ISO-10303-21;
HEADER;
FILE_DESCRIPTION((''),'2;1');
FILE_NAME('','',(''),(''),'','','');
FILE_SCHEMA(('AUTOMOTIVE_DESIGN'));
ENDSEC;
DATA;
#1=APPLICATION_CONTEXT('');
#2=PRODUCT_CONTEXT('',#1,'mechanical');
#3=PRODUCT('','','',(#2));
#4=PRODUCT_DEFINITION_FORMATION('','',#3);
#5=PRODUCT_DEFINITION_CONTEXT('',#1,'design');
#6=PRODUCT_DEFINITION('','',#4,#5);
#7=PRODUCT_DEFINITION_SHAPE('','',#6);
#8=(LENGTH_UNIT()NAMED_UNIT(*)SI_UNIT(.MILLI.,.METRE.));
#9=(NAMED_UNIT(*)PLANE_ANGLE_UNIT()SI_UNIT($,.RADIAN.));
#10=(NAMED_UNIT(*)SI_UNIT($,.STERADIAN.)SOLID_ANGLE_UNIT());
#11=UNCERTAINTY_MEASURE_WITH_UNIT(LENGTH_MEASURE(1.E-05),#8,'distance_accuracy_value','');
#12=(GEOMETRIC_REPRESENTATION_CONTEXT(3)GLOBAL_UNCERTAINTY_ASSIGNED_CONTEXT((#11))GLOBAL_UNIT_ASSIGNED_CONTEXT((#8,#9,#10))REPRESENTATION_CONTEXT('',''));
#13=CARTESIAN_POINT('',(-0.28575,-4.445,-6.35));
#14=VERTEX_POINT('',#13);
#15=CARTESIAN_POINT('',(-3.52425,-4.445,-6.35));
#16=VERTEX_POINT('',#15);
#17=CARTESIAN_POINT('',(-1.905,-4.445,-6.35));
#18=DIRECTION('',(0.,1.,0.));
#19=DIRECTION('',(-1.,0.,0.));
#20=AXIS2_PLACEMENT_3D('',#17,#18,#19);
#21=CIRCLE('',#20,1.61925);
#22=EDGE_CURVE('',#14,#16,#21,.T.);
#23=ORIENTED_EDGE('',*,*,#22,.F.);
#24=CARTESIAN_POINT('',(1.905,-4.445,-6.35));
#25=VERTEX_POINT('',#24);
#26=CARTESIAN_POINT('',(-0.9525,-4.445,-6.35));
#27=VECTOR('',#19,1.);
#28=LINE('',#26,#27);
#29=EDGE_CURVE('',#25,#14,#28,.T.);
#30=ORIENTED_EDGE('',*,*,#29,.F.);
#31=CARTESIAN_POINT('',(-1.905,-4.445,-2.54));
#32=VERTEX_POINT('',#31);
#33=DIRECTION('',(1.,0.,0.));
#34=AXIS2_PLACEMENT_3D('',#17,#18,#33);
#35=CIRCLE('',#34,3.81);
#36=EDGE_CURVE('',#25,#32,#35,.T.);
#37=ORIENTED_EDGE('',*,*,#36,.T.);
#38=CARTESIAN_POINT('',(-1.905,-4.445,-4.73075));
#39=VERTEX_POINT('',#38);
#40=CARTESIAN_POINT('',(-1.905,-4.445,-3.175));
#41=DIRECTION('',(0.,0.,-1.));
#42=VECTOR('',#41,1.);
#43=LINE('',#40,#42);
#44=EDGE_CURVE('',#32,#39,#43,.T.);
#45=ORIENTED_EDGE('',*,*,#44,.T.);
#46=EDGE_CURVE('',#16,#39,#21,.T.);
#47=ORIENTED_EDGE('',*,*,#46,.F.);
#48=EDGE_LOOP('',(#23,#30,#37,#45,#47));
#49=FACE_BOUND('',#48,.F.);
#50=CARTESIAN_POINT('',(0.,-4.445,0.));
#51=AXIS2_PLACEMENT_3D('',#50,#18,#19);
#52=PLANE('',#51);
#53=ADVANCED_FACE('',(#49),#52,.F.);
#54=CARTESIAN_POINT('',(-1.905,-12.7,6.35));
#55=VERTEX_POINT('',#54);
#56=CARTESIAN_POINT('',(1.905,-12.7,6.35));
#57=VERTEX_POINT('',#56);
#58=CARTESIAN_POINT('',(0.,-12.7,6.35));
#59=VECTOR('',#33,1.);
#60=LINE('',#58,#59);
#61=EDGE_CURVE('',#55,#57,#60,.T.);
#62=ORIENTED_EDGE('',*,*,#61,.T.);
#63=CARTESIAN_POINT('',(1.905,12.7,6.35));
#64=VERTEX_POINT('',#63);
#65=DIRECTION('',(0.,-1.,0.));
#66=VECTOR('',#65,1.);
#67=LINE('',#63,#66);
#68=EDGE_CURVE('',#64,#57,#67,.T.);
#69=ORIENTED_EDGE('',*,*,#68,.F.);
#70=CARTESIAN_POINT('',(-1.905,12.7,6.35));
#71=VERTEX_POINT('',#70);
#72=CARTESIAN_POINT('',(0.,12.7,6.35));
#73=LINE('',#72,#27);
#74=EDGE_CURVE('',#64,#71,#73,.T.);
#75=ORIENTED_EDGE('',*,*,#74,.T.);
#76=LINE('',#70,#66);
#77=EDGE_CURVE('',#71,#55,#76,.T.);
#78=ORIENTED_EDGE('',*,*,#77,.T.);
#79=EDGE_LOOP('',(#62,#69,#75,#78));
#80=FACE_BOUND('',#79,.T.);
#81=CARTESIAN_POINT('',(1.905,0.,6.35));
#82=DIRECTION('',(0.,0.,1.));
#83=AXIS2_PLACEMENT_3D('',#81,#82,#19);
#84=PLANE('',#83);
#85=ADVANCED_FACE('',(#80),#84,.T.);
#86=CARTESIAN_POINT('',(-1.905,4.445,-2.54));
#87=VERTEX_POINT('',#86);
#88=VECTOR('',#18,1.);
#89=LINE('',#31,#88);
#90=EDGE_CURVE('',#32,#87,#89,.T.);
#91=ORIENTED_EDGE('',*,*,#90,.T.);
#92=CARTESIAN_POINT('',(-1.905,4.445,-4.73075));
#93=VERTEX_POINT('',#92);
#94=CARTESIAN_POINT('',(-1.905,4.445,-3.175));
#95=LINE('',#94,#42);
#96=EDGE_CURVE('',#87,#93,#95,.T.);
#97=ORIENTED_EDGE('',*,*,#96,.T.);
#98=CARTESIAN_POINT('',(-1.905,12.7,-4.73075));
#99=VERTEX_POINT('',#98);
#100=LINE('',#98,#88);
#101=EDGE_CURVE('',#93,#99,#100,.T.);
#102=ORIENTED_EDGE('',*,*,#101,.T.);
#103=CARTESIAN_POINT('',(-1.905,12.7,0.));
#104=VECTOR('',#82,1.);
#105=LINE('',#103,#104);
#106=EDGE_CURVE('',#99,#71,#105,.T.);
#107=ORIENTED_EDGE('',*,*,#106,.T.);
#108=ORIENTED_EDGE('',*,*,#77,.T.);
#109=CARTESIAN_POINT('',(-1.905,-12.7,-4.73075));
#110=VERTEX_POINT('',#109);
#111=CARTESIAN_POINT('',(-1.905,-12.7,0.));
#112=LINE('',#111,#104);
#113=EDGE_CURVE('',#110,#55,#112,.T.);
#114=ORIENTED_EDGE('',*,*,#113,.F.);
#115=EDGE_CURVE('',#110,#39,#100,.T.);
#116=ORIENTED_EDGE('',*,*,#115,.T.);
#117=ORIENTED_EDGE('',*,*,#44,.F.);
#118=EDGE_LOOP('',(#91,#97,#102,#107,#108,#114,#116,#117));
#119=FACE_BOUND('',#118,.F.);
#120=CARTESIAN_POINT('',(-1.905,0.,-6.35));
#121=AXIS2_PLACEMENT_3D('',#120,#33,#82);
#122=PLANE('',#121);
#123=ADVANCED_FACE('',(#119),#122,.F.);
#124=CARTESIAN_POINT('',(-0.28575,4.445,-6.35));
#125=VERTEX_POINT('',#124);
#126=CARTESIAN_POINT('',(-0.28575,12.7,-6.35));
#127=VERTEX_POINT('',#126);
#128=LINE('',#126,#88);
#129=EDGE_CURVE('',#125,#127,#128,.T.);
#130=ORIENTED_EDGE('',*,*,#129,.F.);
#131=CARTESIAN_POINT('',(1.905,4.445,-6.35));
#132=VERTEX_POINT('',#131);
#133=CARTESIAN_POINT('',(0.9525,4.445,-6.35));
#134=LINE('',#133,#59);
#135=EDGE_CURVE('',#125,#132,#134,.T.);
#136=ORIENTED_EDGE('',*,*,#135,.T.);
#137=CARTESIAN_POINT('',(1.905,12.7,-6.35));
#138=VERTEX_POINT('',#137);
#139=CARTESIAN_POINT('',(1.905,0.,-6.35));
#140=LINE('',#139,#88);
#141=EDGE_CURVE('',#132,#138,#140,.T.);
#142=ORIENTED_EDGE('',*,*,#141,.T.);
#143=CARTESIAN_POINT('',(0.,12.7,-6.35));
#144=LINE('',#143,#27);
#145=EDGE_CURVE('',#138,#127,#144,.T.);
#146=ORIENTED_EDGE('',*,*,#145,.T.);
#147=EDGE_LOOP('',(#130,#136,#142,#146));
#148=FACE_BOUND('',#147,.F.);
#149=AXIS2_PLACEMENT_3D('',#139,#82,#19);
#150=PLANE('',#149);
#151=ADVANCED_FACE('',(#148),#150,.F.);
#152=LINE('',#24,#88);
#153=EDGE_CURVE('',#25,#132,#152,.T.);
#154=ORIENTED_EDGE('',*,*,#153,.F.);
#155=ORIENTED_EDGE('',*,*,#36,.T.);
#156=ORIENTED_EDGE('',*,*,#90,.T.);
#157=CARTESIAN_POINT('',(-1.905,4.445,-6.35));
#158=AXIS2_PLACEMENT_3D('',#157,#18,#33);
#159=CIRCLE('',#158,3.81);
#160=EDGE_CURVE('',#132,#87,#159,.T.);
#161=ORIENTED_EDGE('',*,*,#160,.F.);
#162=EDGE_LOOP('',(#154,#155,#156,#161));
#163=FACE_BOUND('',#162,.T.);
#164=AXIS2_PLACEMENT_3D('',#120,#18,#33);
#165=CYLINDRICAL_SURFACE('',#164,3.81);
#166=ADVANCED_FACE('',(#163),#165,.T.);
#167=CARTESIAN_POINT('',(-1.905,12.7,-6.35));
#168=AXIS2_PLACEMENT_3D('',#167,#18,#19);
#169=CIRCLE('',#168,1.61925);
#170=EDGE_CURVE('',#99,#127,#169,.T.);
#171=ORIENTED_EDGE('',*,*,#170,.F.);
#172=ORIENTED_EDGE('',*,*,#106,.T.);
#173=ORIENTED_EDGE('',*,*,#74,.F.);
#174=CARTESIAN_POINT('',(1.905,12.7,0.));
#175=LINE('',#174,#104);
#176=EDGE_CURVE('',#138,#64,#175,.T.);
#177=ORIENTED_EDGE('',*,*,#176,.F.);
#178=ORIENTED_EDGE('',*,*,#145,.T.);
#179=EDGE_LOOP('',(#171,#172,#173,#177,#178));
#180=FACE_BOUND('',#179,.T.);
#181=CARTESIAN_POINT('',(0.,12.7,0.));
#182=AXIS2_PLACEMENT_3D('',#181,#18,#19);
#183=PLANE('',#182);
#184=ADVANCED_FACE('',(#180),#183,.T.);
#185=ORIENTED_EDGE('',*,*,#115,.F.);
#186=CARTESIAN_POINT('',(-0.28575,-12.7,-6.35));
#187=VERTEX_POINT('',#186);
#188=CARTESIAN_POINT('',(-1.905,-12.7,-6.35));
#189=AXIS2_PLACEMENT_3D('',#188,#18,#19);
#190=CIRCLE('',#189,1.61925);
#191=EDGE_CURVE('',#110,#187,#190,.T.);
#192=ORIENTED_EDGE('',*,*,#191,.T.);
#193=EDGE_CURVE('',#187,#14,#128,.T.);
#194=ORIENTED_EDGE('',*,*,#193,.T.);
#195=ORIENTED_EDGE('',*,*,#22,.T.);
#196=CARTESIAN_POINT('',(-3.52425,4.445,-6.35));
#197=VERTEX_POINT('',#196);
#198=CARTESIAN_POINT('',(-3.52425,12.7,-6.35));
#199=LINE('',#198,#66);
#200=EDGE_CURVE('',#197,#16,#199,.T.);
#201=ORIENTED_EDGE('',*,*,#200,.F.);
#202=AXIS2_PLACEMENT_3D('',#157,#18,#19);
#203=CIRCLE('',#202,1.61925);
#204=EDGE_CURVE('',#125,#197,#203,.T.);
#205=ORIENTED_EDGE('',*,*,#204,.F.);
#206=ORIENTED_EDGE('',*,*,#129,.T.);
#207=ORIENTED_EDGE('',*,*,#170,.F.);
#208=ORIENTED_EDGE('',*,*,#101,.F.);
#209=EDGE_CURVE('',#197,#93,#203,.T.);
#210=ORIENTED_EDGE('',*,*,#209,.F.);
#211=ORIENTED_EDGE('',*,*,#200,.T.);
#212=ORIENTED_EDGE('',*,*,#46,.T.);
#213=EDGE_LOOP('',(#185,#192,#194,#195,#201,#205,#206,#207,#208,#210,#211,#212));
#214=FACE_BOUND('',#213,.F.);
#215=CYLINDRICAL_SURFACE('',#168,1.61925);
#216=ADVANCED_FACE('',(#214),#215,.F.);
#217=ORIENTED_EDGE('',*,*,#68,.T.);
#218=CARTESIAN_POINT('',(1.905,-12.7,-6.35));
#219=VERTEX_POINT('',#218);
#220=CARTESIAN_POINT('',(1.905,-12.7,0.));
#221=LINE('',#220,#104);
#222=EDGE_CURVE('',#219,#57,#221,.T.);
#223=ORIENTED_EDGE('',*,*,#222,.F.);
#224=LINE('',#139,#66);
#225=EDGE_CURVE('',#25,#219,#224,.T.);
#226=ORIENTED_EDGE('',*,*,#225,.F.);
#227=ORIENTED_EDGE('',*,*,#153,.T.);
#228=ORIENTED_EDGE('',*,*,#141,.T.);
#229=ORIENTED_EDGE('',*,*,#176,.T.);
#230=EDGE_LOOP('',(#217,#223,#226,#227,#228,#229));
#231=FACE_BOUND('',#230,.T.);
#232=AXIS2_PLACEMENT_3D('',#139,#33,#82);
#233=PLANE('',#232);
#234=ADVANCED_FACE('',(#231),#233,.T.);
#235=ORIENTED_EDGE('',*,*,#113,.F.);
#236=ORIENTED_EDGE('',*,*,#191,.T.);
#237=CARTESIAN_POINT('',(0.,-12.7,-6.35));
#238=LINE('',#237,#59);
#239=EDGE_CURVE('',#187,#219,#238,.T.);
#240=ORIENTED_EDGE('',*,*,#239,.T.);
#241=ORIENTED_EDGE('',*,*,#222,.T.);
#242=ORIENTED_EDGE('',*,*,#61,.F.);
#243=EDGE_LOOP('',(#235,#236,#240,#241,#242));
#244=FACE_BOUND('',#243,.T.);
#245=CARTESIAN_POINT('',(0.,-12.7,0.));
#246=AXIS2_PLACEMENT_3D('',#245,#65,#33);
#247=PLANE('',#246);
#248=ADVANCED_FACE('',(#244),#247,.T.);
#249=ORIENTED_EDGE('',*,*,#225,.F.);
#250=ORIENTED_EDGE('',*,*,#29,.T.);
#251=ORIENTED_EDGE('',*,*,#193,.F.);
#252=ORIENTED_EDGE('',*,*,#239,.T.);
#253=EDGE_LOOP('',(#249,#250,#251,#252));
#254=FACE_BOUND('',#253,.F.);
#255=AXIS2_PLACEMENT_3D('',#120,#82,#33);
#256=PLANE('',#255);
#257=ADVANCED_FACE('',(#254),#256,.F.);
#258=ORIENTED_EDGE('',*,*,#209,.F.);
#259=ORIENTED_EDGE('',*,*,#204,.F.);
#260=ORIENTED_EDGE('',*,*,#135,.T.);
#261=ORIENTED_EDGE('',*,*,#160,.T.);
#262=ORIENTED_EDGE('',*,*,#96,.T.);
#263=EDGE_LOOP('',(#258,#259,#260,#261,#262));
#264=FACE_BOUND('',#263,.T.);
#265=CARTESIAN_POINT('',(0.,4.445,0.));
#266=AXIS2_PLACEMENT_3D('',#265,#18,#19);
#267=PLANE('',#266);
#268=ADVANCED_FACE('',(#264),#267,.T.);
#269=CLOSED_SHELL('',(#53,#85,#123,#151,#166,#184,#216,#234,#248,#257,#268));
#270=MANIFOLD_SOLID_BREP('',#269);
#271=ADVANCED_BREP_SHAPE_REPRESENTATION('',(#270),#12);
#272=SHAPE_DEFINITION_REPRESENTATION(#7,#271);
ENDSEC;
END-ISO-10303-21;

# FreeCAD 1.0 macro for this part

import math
import FreeCAD as App
import Part
import Sketcher
Q = App.Units.Quantity


def add_polygon(sketch, points):
    """Adds a closed chain of lines whose ends are joined by coincident constraints."""
    first, n = sketch.GeometryCount, len(points)
    for a, b in zip(points, points[1:] + points[:1]):
        sketch.addGeometry(Part.LineSegment(App.Vector(*a, 0), App.Vector(*b, 0)), False)
    for i in range(n):
        sketch.addConstraint(Sketcher.Constraint("Coincident", first + i, 2, first + (i + 1) % n, 1))

doc = App.newDocument("Part")
body = doc.addObject("PartDesign::Body", "Body")

# Sketch on XZ plane
sketch1 = doc.addObject("Sketcher::SketchObject", "Sketch")
body.addObject(sketch1)
sketch1.AttachmentSupport = (doc.XZ_Plane, [""])
sketch1.MapMode = "FlatFace"
add_polygon(sketch1, [(-1.9, 6.3), (-1.9, -6.3), (1.9, -6.3), (1.9, 6.3)])  # lines 0-3
sketch1.addConstraint(Sketcher.Constraint("Vertical", 0))
sketch1.addConstraint(Sketcher.Constraint("Horizontal", 1))
sketch1.addConstraint(Sketcher.Constraint("Vertical", 2))
sketch1.addConstraint(Sketcher.Constraint("Horizontal", 3))
sketch1.addConstraint(Sketcher.Constraint("Symmetric", 0, 2, 2, 2, -1, 1))
sketch1.addConstraint(Sketcher.Constraint("DistanceY", 0, 2, 0, 1, Q("0.5 in")))
sketch1.addConstraint(Sketcher.Constraint("DistanceX", 1, 1, 1, 2, Q("0.15 in")))
pad1 = doc.addObject("PartDesign::Pad", "Pad")
body.addObject(pad1)
pad1.Profile = sketch1
pad1.Length = Q("0.5 in")

# Sketch on XZ plane
sketch2 = doc.addObject("Sketcher::SketchObject", "Sketch001")
body.addObject(sketch2)
sketch2.AttachmentSupport = (doc.XZ_Plane, [""])
sketch2.MapMode = "FlatFace"
sketch2.addGeometry(Part.LineSegment(App.Vector(1.9, 6.3, 0), App.Vector(1.9, -6.3, 0)), False)
sketch2.addGeometry(Part.ArcOfCircle(Part.Circle(App.Vector(-1.9, -6.3, 0), App.Vector(0, 0, 1), 3.8), math.radians(90), math.radians(360)), False)
sketch2.addGeometry(Part.LineSegment(App.Vector(-1.9, -2.5, 0), App.Vector(-1.9, 6.3, 0)), False)
sketch2.addGeometry(Part.LineSegment(App.Vector(-1.9, 6.3, 0), App.Vector(1.9, 6.3, 0)), False)
sketch2.addConstraint(Sketcher.Constraint("Tangent", 0, 2, 1, 2))
sketch2.addConstraint(Sketcher.Constraint("Coincident", 1, 1, 2, 1))
sketch2.addConstraint(Sketcher.Constraint("Coincident", 2, 2, 3, 1))
sketch2.addConstraint(Sketcher.Constraint("Coincident", 3, 2, 0, 1))
sketch2.addConstraint(Sketcher.Constraint("Vertical", 0))
sketch2.addConstraint(Sketcher.Constraint("Vertical", 2))
sketch2.addConstraint(Sketcher.Constraint("Horizontal", 3))
sketch2.addConstraint(Sketcher.Constraint("Symmetric", 0, 2, 2, 2, -1, 1))
sketch2.addConstraint(Sketcher.Constraint("Radius", 1, Q("0.15 in")))
sketch2.addConstraint(Sketcher.Constraint("DistanceY", 0, 2, 0, 1, Q("0.5 in")))
sketch2.addConstraint(Sketcher.Constraint("DistanceX", 3, 1, 3, 2, Q("0.15 in")))
pad2 = doc.addObject("PartDesign::Pad", "Pad001")
body.addObject(pad2)
pad2.Profile = sketch2
pad2.Length = Q("0.35 in")
pad2.Midplane = True

# Sketch on XZ plane
sketch3 = doc.addObject("Sketcher::SketchObject", "Sketch002")
body.addObject(sketch3)
sketch3.AttachmentSupport = (doc.XZ_Plane, [""])
sketch3.MapMode = "FlatFace"
add_polygon(sketch3, [(1.9, 6.3), (1.9, -6.3), (-1.9, -6.3), (-1.9, 6.3)])  # lines 0-3
sketch3.addConstraint(Sketcher.Constraint("Vertical", 0))
sketch3.addConstraint(Sketcher.Constraint("Horizontal", 1))
sketch3.addConstraint(Sketcher.Constraint("Vertical", 2))
sketch3.addConstraint(Sketcher.Constraint("Horizontal", 3))
sketch3.addConstraint(Sketcher.Constraint("Symmetric", 0, 2, 2, 2, -1, 1))
sketch3.addConstraint(Sketcher.Constraint("DistanceY", 0, 2, 0, 1, Q("0.5 in")))
sketch3.addConstraint(Sketcher.Constraint("DistanceX", 1, 2, 1, 1, Q("0.15 in")))
pad3 = doc.addObject("PartDesign::Pad", "Pad002")
body.addObject(pad3)
pad3.Profile = sketch3
pad3.Length = Q("0.5 in")
pad3.Reversed = True

# Sketch on XZ plane
sketch4 = doc.addObject("Sketcher::SketchObject", "Sketch003")
body.addObject(sketch4)
sketch4.AttachmentSupport = (doc.XZ_Plane, [""])
sketch4.MapMode = "FlatFace"
sketch4.AttachmentOffset = App.Placement(App.Vector(0, 0, -0.5 * 25.4), App.Rotation())
sketch4.addGeometry(Part.Circle(App.Vector(-1.9, -6.3, 0), App.Vector(0, 0, 1), 1.6), False)
sketch4.addConstraint(Sketcher.Constraint("Diameter", 0, Q("0.1275 in")))
sketch4.addConstraint(Sketcher.Constraint("DistanceY", 0, 3, -1, 1, Q("0.25 in")))
sketch4.addConstraint(Sketcher.Constraint("DistanceX", 0, 3, -1, 1, Q("0.075 in")))
pocket1 = doc.addObject("PartDesign::Pocket", "Pocket")
body.addObject(pocket1)
pocket1.Profile = sketch4
pocket1.Length = Q("1 in")
pocket1.Reversed = True

doc.recompute()
